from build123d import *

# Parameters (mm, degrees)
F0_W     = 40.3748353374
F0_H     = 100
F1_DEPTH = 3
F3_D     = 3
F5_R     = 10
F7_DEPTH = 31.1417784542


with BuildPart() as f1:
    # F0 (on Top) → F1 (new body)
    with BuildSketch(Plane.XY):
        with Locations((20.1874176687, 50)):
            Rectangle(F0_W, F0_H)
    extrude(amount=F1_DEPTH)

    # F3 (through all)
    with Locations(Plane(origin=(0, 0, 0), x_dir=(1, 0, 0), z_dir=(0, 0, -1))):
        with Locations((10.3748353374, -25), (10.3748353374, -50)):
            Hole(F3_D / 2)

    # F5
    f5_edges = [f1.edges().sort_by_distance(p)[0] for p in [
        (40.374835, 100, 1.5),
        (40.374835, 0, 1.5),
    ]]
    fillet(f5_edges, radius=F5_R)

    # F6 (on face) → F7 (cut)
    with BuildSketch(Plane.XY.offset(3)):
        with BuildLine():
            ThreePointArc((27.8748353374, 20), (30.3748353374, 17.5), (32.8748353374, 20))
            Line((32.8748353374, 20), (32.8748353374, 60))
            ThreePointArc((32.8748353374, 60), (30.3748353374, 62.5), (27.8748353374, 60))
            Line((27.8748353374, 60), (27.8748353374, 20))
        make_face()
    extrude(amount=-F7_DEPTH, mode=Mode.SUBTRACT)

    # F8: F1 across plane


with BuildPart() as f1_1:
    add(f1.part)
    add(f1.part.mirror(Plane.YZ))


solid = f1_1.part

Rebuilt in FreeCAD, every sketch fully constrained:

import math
import FreeCAD as App
import Part
import Sketcher

V = App.Vector


def edges_at(feature, points):
    """Names of the edges that pass closest to the given points."""
    edges = feature.Shape.Edges
    near = lambda p: min(range(len(edges)), key=lambda i: edges[i].distToShape(Part.Vertex(*p))[0])
    return sorted({f"Edge{near(p) + 1}" for p in points})

doc = App.newDocument("Part")
body = doc.addObject("PartDesign::Body", "Body")

# Sketch on XY plane
sketch1 = body.newObject("Sketcher::SketchObject", "Sketch")
sketch1.AttachmentSupport = (doc.getObject("XY_Plane"), [""])
sketch1.MapMode = "FlatFace"
sketch1.addGeometry([
    Part.LineSegment(V(0, 100, 0), V(0, 0, 0)),
    Part.LineSegment(V(0, 0, 0), V(40, 0, 0)),
    Part.LineSegment(V(40, 0, 0), V(40, 100, 0)),
    Part.LineSegment(V(40, 100, 0), V(0, 100, 0)),
], False)
sketch1.addConstraint([
    Sketcher.Constraint("Coincident", 0, 2, 1, 1),
    Sketcher.Constraint("Coincident", 1, 2, 2, 1),
    Sketcher.Constraint("Coincident", 2, 2, 3, 1),
    Sketcher.Constraint("Coincident", 3, 2, 0, 1),
    Sketcher.Constraint("Vertical", 0),
    Sketcher.Constraint("Horizontal", 1),
    Sketcher.Constraint("Vertical", 2),
    Sketcher.Constraint("Horizontal", 3),
    Sketcher.Constraint("Coincident", 0, 2, -1, 1),
    Sketcher.Constraint("DistanceY", 0, 2, 0, 1, 100.0),
    Sketcher.Constraint("DistanceX", 1, 1, 1, 2, 40.374835),
])
pad1 = body.newObject("PartDesign::Pad", "Pad")
pad1.Profile = sketch1
pad1.Length = 3

# Sketch on XY plane
sketch2 = body.newObject("Sketcher::SketchObject", "Sketch001")
sketch2.AttachmentSupport = (doc.getObject("XY_Plane"), [""])
sketch2.MapMode = "FlatFace"
sketch2.addGeometry([
    Part.Circle(V(10.4, 25, 0), V(0, 0, 1), 1.5),
    Part.Circle(V(10.4, 50, 0), V(0, 0, 1), 1.5),
], False)
sketch2.addConstraint([
    Sketcher.Constraint("Equal", 0, 1),
    Sketcher.Constraint("Vertical", 0, 3, 1, 3),
    Sketcher.Constraint("Diameter", 0, 3.0),
    Sketcher.Constraint("DistanceY", -1, 1, 0, 3, 25.0),
    Sketcher.Constraint("DistanceY", -1, 1, 1, 3, 50.0),
    Sketcher.Constraint("DistanceX", -1, 1, 0, 3, 10.374835),
])
doc.recompute()
hole = body.newObject("PartDesign::Hole", "Hole")
hole.Profile = sketch2
hole.ThreadType = "None"
hole.Diameter = 3
hole.DepthType = "ThroughAll"
hole.Reversed = True
doc.recompute()

fillet = body.newObject("PartDesign::Fillet", "Fillet")
fillet.Base = (hole, edges_at(hole, [(40.375, 100, 1.5), (40.375, 0, 1.5)]))
fillet.Radius = 10

# Sketch on XY plane
sketch3 = body.newObject("Sketcher::SketchObject", "Sketch002")
sketch3.AttachmentSupport = (doc.getObject("XY_Plane"), [""])
sketch3.MapMode = "FlatFace"
sketch3.AttachmentOffset = App.Placement(V(0, 0, 3), App.Rotation())
sketch3.addGeometry([
    Part.ArcOfCircle(Part.Circle(V(30.4, 20, 0), V(0, 0, 1), 2.5), math.radians(180), math.radians(360)),
    Part.LineSegment(V(32.9, 20, 0), V(32.9, 60, 0)),
    Part.ArcOfCircle(Part.Circle(V(30.4, 60, 0), V(0, 0, 1), 2.5), math.radians(0), math.radians(180)),
    Part.LineSegment(V(27.9, 60, 0), V(27.9, 20, 0)),
], False)
sketch3.addConstraint([
    Sketcher.Constraint("Tangent", 0, 2, 1, 1),
    Sketcher.Constraint("Tangent", 1, 2, 2, 1),
    Sketcher.Constraint("Tangent", 2, 2, 3, 1),
    Sketcher.Constraint("Tangent", 3, 2, 0, 1),
    Sketcher.Constraint("Vertical", 1),
    Sketcher.Constraint("Vertical", 3),
    Sketcher.Constraint("Radius", 0, 2.5),
    Sketcher.Constraint("DistanceY", 1, 1, 1, 2, 40.0),
    Sketcher.Constraint("DistanceY", -1, 1, 0, 3, 20.0),
    Sketcher.Constraint("DistanceX", -1, 1, 0, 3, 30.374835),
])
pocket1 = body.newObject("PartDesign::Pocket", "Pocket")
pocket1.Profile = sketch3
pocket1.Length = 31.141778
body2 = doc.addObject("PartDesign::Body", "Body001")
doc.recompute()

body2.BaseFeature = body
doc.recompute()

mirroring = doc.addObject("Part::Mirroring", "Mirroring")
mirroring.Source = body
mirroring.Base = V(0, 0, 0)
mirroring.Normal = V(1, 0, 0)
body3 = doc.addObject("PartDesign::Body", "Body002")
body3.BaseFeature = mirroring
boolean = body2.newObject("PartDesign::Boolean", "Boolean")
boolean.Type = "Fuse"
boolean.addObjects([body3])
doc.recompute()
mirroring.Visibility = False

doc.recompute()
